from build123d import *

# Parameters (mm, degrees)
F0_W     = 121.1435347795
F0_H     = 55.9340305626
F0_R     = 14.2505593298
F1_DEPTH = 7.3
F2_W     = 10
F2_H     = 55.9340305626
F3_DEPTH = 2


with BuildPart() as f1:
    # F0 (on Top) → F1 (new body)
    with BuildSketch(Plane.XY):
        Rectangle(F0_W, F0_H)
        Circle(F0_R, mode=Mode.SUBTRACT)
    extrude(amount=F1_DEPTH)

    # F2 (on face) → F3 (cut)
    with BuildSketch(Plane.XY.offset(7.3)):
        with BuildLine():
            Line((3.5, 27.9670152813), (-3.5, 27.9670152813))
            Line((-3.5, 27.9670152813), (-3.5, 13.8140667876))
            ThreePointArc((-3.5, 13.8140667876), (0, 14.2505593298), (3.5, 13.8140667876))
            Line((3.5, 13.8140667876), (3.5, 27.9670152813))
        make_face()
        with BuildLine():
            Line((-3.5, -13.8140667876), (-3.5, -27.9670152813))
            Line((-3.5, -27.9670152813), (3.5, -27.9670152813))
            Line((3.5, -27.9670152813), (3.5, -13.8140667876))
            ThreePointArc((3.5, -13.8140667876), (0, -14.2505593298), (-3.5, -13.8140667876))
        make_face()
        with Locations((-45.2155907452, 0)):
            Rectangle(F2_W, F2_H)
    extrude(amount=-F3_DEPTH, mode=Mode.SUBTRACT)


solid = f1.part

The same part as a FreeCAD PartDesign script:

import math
import FreeCAD as App
import Part
import Sketcher

V = App.Vector
Q = App.Units.Quantity


def add_polygon(sketch, points):
    """Adds a closed chain of lines whose ends are joined by coincident constraints."""
    first, n = sketch.GeometryCount, len(points)
    for a, b in zip(points, points[1:] + points[:1]):
        sketch.addGeometry(Part.LineSegment(App.Vector(*a, 0), App.Vector(*b, 0)), False)
    for i in range(n):
        sketch.addConstraint(Sketcher.Constraint("Coincident", first + i, 2, first + (i + 1) % n, 1))

doc = App.newDocument("Part")
body = doc.addObject("PartDesign::Body", "Body")

sketch1 = body.newObject("Sketcher::SketchObject", "Sketch")
sketch1.AttachmentSupport = (doc.getObject("XY_Plane"), [""])
sketch1.MapMode = "FlatFace"
add_polygon(sketch1, [(-60.571767, 27.967015), (-60.571767, -27.967015), (60.571767, -27.967015), (60.571767, 27.967015)])
sketch1.addGeometry(Part.Circle(V(0, 0, 0), V(0, 0, 1), 14.250559), False)
sketch1.addConstraint([
    Sketcher.Constraint("Vertical", 0),
    Sketcher.Constraint("Horizontal", 1),
    Sketcher.Constraint("Vertical", 2),
    Sketcher.Constraint("Horizontal", 3),
    Sketcher.Constraint("Coincident", 4, 3, -1, 1),
    Sketcher.Constraint("Symmetric", 0, 2, 2, 2, -1, 1),
    Sketcher.Constraint("Diameter", 4, Q("28.501119 mm")),
    Sketcher.Constraint("DistanceY", 0, 2, 0, 1, Q("55.934031 mm")),
    Sketcher.Constraint("DistanceX", 1, 1, 1, 2, Q("121.143535 mm")),
])
pad1 = body.newObject("PartDesign::Pad", "Pad")
pad1.Profile = sketch1
pad1.Length = 7.3

sketch2 = body.newObject("Sketcher::SketchObject", "Sketch001")
sketch2.AttachmentSupport = (doc.getObject("XY_Plane"), [""])
sketch2.MapMode = "FlatFace"
sketch2.AttachmentOffset = App.Placement(V(0, 0, 7.3), App.Rotation())
sketch2.addGeometry(Part.LineSegment(V(3.5, 27.967015, 0), V(-3.5, 27.967015, 0)), False)
sketch2.addGeometry(Part.LineSegment(V(-3.5, 27.967015, 0), V(-3.5, 13.814067, 0)), False)
sketch2.addGeometry(Part.ArcOfCircle(Part.Circle(V(0, 0, 0), V(0, 0, 1), 14.250559), math.radians(75.782446), math.radians(104.217554)), False)
sketch2.addGeometry(Part.LineSegment(V(3.5, 13.814067, 0), V(3.5, 27.967015, 0)), False)
sketch2.addGeometry(Part.LineSegment(V(-3.5, -13.814067, 0), V(-3.5, -27.967015, 0)), False)
sketch2.addGeometry(Part.LineSegment(V(-3.5, -27.967015, 0), V(3.5, -27.967015, 0)), False)
sketch2.addGeometry(Part.LineSegment(V(3.5, -27.967015, 0), V(3.5, -13.814067, 0)), False)
sketch2.addGeometry(Part.ArcOfCircle(Part.Circle(V(0, 0, 0), V(0, 0, 1), 14.250559), math.radians(-104.217554), math.radians(-75.782446)), False)
add_polygon(sketch2, [(-50.215591, 27.967015), (-50.215591, -27.967015), (-40.215591, -27.967015), (-40.215591, 27.967015)])
sketch2.addConstraint([
    Sketcher.Constraint("Coincident", 0, 2, 1, 1),
    Sketcher.Constraint("Coincident", 1, 2, 2, 2),
    Sketcher.Constraint("Coincident", 2, 1, 3, 1),
    Sketcher.Constraint("Coincident", 3, 2, 0, 1),
    Sketcher.Constraint("Coincident", 4, 2, 5, 1),
    Sketcher.Constraint("Coincident", 5, 2, 6, 1),
    Sketcher.Constraint("Coincident", 6, 2, 7, 2),
    Sketcher.Constraint("Coincident", 7, 1, 4, 1),
    Sketcher.Constraint("Horizontal", 0),
    Sketcher.Constraint("Vertical", 1),
    Sketcher.Constraint("Vertical", 3),
    Sketcher.Constraint("Vertical", 4),
    Sketcher.Constraint("Horizontal", 5),
    Sketcher.Constraint("Vertical", 6),
    Sketcher.Constraint("Vertical", 8),
    Sketcher.Constraint("Horizontal", 9),
    Sketcher.Constraint("Vertical", 10),
    Sketcher.Constraint("Horizontal", 11),
    Sketcher.Constraint("Coincident", 2, 3, -1, 1),
    Sketcher.Constraint("Coincident", 7, 3, -1, 1),
    Sketcher.Constraint("Equal", 2, 7),
    Sketcher.Constraint("Symmetric", 3, 2, 4, 2, -1, 1),
    Sketcher.Constraint("Horizontal", 1, 2, 2, 1),
    Sketcher.Constraint("Horizontal", 6, 2, 7, 1),
    Sketcher.Constraint("Horizontal", 5, 2, 8, 2),
    Sketcher.Constraint("Horizontal", 3, 2, 10, 2),
    Sketcher.Constraint("DistanceX", 0, 2, 0, 1, Q("7 mm")),
    Sketcher.Constraint("DistanceX", 9, 1, 9, 2, Q("10 mm")),
    Sketcher.Constraint("Radius", 2, Q("14.250559 mm")),
    Sketcher.Constraint("DistanceY", 1, 2, 1, 1, Q("14.152948 mm")),
    Sketcher.Constraint("DistanceX", 8, 2, -1, 1, Q("50.215591 mm")),
])
pocket1 = body.newObject("PartDesign::Pocket", "Pocket")
pocket1.Profile = sketch2
pocket1.Length = 2

doc.recompute()
